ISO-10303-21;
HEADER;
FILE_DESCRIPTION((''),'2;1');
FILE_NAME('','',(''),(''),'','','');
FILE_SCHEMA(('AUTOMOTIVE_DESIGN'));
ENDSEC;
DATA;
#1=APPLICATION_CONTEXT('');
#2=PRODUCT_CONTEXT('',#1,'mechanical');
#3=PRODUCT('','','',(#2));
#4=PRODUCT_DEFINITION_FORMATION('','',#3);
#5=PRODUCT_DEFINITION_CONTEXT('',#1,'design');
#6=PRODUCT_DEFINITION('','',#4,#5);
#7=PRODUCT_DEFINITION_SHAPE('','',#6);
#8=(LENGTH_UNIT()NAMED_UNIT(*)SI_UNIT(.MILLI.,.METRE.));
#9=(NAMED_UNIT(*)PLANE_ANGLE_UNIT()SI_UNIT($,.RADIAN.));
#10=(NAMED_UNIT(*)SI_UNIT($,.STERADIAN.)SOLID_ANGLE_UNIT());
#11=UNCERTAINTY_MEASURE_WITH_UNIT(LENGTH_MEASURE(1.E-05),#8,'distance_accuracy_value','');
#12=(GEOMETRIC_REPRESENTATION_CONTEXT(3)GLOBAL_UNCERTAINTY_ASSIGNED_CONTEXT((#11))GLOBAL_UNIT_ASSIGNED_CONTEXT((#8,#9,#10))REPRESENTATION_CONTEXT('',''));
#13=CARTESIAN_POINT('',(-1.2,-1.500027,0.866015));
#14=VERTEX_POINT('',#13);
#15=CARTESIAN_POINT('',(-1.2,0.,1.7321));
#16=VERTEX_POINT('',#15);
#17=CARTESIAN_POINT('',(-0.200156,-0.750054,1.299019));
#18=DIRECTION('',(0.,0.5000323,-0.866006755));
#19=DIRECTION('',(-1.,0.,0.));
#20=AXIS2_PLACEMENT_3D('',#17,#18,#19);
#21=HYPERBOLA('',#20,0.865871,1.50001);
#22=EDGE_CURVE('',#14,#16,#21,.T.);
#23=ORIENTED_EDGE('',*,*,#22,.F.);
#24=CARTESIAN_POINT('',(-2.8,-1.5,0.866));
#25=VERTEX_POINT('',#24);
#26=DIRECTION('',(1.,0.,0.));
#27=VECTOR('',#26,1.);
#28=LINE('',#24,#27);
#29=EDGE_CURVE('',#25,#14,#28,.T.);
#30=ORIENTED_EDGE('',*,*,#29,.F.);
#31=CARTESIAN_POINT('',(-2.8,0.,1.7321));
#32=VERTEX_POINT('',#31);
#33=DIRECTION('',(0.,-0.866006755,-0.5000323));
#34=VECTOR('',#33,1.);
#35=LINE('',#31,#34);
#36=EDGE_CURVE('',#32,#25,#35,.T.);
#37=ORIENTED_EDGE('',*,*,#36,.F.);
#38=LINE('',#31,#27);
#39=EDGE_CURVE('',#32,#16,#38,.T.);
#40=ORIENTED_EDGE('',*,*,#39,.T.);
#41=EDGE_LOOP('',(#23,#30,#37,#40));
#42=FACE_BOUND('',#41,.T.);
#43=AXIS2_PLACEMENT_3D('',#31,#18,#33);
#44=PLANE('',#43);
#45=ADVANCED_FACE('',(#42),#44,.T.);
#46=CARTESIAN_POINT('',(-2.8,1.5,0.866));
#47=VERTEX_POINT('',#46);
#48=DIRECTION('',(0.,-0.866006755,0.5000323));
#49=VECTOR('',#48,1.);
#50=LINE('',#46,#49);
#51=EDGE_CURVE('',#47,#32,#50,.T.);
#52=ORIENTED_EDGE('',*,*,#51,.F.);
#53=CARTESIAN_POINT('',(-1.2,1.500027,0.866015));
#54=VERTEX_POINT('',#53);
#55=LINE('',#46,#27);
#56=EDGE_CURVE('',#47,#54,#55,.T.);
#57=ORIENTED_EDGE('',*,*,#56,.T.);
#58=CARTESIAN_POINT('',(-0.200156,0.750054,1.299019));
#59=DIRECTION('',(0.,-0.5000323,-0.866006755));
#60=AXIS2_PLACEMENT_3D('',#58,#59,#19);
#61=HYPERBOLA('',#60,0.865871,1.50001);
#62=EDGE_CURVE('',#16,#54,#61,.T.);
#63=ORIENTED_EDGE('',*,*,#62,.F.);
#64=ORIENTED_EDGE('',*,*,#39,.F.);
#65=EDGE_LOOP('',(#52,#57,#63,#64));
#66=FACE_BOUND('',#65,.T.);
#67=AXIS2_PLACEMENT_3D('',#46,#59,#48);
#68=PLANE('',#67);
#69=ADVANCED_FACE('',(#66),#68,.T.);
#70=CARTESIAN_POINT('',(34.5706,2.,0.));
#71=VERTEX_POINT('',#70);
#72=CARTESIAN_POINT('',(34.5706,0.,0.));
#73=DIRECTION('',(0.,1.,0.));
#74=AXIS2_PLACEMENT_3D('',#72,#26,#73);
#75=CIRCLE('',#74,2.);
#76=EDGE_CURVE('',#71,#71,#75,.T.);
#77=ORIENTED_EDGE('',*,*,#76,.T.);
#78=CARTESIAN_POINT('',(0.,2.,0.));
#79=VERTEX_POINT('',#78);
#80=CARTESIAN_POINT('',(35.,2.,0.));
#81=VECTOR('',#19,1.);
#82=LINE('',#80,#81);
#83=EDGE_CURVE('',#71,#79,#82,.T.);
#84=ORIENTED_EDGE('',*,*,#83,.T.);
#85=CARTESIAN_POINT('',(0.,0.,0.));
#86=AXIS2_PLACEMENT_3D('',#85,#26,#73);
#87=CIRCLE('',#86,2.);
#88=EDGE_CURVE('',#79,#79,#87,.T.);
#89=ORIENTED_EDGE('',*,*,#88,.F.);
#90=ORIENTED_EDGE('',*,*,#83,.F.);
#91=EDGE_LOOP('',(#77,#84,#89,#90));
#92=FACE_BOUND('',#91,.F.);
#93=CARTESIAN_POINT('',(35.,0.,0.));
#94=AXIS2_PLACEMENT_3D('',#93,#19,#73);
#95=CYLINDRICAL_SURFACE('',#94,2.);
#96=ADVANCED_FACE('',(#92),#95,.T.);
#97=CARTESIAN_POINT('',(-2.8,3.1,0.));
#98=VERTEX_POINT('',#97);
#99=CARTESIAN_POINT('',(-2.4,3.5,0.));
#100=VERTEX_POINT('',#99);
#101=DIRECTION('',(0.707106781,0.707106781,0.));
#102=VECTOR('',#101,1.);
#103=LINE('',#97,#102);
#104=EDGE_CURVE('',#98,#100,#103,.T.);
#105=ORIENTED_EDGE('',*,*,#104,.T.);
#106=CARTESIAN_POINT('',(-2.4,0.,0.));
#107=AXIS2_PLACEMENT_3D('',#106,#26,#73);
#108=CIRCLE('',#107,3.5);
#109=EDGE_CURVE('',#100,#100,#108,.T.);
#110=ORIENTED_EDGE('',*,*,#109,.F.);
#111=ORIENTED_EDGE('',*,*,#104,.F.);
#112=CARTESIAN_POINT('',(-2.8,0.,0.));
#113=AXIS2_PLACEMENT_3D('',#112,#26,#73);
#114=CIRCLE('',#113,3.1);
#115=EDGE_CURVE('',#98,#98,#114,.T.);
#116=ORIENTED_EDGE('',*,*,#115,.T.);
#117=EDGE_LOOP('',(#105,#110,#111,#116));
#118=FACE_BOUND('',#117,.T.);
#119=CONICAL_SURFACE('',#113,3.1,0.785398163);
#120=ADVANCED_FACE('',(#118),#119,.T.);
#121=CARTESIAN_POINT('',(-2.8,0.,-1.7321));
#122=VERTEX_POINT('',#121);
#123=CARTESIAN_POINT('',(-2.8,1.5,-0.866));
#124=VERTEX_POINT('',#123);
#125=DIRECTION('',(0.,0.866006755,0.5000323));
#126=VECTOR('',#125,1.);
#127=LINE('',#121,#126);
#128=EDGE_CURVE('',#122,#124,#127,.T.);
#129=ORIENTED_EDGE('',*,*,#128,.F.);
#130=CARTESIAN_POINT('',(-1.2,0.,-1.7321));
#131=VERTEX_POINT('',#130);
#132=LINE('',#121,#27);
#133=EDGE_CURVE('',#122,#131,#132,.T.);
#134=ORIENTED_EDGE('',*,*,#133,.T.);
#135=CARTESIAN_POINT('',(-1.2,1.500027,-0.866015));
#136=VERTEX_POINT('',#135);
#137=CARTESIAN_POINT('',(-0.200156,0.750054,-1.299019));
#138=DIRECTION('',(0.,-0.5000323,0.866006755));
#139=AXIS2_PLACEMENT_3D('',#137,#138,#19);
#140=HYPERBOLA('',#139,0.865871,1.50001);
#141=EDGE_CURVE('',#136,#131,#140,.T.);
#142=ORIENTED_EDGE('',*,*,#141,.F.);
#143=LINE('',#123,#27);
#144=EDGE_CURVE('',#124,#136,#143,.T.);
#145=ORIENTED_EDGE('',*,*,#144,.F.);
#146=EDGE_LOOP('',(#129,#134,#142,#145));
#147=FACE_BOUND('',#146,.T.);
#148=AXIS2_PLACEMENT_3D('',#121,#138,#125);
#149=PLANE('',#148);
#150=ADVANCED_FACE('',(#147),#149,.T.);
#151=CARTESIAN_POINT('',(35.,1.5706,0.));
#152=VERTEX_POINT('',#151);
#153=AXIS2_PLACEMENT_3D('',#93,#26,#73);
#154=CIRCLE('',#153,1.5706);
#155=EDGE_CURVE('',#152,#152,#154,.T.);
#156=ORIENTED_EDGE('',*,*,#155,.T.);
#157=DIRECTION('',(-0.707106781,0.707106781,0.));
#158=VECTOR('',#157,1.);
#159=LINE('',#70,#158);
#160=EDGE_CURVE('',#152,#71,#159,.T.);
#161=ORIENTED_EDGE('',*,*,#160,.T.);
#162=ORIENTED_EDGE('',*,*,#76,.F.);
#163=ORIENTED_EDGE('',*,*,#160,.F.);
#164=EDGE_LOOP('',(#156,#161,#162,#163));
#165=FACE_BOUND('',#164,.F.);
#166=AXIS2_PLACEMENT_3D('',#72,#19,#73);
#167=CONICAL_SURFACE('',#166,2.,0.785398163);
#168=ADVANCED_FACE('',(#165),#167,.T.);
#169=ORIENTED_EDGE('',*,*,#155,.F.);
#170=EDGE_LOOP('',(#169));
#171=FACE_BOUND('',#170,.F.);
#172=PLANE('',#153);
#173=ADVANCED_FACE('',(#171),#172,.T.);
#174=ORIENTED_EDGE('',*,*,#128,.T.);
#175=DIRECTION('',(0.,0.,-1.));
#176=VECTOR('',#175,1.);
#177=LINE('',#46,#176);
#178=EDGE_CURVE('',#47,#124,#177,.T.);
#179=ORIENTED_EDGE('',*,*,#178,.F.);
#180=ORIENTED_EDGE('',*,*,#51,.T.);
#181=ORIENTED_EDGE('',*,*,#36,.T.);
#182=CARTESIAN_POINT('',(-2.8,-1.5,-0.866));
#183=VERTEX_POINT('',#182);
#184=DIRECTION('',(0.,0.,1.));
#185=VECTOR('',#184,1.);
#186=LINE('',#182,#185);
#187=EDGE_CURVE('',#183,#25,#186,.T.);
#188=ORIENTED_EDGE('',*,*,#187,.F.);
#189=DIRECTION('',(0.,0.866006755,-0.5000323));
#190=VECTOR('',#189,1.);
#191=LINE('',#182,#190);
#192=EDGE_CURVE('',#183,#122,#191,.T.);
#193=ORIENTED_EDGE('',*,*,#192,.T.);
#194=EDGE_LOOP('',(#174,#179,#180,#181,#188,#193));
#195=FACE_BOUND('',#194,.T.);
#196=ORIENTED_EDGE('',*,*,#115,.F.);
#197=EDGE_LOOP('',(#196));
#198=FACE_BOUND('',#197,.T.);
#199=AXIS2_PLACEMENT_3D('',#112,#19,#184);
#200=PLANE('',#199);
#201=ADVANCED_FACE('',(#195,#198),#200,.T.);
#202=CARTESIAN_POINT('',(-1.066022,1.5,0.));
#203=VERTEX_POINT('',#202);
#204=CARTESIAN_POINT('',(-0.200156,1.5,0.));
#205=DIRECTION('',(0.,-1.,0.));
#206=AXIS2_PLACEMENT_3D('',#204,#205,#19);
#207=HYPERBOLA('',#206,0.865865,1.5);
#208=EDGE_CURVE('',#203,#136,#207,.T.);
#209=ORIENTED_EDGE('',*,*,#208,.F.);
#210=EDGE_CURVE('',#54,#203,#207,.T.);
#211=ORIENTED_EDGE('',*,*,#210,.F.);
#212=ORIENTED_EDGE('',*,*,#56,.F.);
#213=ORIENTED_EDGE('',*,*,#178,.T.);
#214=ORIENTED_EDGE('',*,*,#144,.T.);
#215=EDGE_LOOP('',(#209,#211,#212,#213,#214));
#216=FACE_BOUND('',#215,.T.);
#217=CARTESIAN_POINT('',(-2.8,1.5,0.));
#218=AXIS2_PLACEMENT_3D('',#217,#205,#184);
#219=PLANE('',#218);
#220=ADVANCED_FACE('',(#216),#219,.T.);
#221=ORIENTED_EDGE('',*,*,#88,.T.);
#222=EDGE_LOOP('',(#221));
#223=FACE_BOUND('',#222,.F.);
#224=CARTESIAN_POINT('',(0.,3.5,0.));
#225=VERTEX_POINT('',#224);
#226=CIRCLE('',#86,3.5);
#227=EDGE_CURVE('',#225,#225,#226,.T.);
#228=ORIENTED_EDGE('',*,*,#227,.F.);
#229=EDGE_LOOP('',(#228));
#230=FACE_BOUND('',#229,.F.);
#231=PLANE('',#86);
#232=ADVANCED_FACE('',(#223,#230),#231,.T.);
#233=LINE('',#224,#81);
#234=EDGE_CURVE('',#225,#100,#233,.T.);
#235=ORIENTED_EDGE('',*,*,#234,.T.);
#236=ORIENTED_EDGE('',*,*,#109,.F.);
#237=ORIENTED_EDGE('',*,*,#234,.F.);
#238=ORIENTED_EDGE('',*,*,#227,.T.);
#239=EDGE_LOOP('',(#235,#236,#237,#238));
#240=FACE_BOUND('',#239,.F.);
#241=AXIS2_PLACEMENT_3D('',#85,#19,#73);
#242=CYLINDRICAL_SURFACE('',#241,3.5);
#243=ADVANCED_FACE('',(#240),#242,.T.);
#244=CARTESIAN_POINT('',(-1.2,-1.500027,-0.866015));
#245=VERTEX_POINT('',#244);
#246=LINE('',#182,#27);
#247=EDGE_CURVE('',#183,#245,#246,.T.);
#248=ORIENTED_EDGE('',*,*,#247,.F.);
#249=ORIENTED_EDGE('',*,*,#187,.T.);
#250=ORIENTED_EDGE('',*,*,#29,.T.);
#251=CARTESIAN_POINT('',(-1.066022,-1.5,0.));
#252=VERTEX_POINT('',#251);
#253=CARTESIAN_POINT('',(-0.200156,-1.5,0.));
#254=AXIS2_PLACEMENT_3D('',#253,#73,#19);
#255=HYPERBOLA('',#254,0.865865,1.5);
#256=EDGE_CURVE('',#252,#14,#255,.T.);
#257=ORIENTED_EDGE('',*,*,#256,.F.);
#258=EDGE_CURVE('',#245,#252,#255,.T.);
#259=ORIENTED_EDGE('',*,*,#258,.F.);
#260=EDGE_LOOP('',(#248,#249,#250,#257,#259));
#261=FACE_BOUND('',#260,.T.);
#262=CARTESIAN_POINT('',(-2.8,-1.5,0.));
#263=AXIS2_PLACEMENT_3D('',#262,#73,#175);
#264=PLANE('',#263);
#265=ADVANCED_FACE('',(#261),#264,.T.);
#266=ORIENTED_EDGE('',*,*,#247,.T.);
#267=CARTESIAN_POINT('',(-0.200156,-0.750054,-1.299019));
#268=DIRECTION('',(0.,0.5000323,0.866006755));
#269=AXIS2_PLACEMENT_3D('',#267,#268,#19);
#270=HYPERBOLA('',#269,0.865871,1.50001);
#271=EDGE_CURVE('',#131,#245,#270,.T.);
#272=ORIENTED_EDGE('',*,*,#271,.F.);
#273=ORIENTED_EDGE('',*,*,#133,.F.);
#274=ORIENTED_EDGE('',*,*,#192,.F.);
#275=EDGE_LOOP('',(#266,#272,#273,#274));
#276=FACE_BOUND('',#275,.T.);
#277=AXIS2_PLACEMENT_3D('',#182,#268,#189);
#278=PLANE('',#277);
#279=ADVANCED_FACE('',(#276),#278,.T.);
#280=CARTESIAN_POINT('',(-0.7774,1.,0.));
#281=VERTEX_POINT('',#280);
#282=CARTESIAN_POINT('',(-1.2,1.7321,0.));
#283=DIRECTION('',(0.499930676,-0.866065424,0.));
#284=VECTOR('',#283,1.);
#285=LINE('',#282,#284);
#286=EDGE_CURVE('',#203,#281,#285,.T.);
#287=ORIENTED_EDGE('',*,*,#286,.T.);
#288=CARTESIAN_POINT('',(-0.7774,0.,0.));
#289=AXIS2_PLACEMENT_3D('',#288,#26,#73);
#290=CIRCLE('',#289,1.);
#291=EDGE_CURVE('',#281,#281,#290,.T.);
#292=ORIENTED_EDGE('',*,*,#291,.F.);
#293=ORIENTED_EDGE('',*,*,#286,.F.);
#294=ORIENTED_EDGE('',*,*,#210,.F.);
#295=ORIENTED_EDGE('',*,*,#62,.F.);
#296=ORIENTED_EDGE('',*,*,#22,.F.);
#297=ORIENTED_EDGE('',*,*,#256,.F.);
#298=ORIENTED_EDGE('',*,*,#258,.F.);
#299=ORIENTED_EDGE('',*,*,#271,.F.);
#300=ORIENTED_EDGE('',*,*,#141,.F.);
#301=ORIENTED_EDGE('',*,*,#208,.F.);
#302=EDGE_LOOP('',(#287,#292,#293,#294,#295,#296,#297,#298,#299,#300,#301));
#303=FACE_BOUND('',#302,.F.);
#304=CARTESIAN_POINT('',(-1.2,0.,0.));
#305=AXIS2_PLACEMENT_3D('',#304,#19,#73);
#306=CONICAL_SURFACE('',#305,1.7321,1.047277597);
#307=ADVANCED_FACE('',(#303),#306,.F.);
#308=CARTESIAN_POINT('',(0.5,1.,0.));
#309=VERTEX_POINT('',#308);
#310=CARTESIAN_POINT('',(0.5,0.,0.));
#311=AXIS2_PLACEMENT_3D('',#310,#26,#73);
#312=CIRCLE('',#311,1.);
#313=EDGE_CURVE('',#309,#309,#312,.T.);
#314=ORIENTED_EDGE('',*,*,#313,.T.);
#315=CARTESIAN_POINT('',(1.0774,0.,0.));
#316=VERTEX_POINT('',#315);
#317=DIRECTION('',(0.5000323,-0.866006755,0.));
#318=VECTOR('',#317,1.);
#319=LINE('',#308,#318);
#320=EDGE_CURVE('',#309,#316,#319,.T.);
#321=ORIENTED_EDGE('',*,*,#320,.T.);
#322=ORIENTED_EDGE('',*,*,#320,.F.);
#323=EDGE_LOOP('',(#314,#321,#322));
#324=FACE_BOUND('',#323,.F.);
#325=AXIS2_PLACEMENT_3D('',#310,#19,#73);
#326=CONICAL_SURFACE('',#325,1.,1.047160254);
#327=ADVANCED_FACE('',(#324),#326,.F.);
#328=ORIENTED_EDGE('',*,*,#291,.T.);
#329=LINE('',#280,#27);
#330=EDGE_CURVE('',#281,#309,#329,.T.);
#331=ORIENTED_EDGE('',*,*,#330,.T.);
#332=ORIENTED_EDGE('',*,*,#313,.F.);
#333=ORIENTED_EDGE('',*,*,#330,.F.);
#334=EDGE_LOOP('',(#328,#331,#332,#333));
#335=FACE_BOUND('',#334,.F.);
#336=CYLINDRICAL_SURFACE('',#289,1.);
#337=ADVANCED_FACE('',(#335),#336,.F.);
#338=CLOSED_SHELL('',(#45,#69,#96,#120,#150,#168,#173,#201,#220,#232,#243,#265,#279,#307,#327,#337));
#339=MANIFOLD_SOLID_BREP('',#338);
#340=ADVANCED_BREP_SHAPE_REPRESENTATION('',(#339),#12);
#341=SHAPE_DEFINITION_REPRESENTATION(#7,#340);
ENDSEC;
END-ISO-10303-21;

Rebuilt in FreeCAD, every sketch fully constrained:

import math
import FreeCAD as App
import Part
import Sketcher
Q = App.Units.Quantity


def edges_at(feature, points):
    """Names of the edges that pass closest to the given points."""
    edges = feature.Shape.Edges
    near = lambda p: min(range(len(edges)), key=lambda i: edges[i].distToShape(Part.Vertex(*p))[0])
    return sorted({f"Edge{near(p) + 1}" for p in points})

doc = App.newDocument("Part")
body = doc.addObject("PartDesign::Body", "Body")

sketch1 = body.newObject("Sketcher::SketchObject", "Sketch")
sketch1.AttachmentSupport = (doc.getObject("XY_Plane"), [""])
sketch1.MapMode = "FlatFace"
sketch1.addGeometry([
    Part.LineSegment(App.Vector(0.5, 1, 0), App.Vector(1.1, 0, 0)),
    Part.LineSegment(App.Vector(1.1, 0, 0), App.Vector(35, 0, 0)),
    Part.LineSegment(App.Vector(35, 0, 0), App.Vector(35, 2, 0)),
    Part.LineSegment(App.Vector(35, 2, 0), App.Vector(0, 2, 0)),
    Part.LineSegment(App.Vector(0, 2, 0), App.Vector(0, 3.5, 0)),
    Part.LineSegment(App.Vector(0, 3.5, 0), App.Vector(-2.8, 3.5, 0)),
    Part.LineSegment(App.Vector(-2.8, 3.5, 0), App.Vector(-2.8, 1.7, 0)),
    Part.LineSegment(App.Vector(-2.8, 1.7, 0), App.Vector(-1.2, 1.7, 0)),
    Part.LineSegment(App.Vector(-1.2, 1.7, 0), App.Vector(-0.8, 1, 0)),
    Part.LineSegment(App.Vector(-0.8, 1, 0), App.Vector(0.5, 1, 0)),
], False)
sketch1.addConstraint([
    Sketcher.Constraint("Coincident", 0, 2, 1, 1),
    Sketcher.Constraint("Coincident", 1, 2, 2, 1),
    Sketcher.Constraint("Coincident", 2, 2, 3, 1),
    Sketcher.Constraint("Coincident", 3, 2, 4, 1),
    Sketcher.Constraint("Coincident", 4, 2, 5, 1),
    Sketcher.Constraint("Coincident", 5, 2, 6, 1),
    Sketcher.Constraint("Coincident", 6, 2, 7, 1),
    Sketcher.Constraint("Coincident", 7, 2, 8, 1),
    Sketcher.Constraint("Coincident", 8, 2, 9, 1),
    Sketcher.Constraint("Coincident", 9, 2, 0, 1),
    Sketcher.Constraint("Horizontal", 1),
    Sketcher.Constraint("Vertical", 2),
    Sketcher.Constraint("Horizontal", 3),
    Sketcher.Constraint("Vertical", 4),
    Sketcher.Constraint("Horizontal", 5),
    Sketcher.Constraint("Vertical", 6),
    Sketcher.Constraint("Horizontal", 7),
    Sketcher.Constraint("Horizontal", 9),
    Sketcher.Constraint("PointOnObject", 0, 2, -1),
    Sketcher.Constraint("PointOnObject", 3, 2, -2),
    Sketcher.Constraint("Parallel", 0, 8),
    Sketcher.Constraint("DistanceX", 3, 2, 3, 1, Q("35 mm")),
    Sketcher.Constraint("DistanceY", 2, 1, 2, 2, Q("2 mm")),
    Sketcher.Constraint("DistanceX", 5, 2, 5, 1, Q("2.8 mm")),
    Sketcher.Constraint("DistanceX", 7, 1, 7, 2, Q("1.6 mm")),
    Sketcher.Constraint("DistanceY", 4, 1, 4, 2, Q("1.5 mm")),
    Sketcher.Constraint("DistanceY", -1, 1, 8, 2, Q("1 mm")),
    Sketcher.Constraint("DistanceX", -1, 1, 9, 2, Q("0.5 mm")),
    Sketcher.Constraint("DistanceY", 6, 2, 6, 1, Q("1.768 mm")),
    Sketcher.Constraint("DistanceX", 1, 1, 1, 2, Q("33.9226 mm")),
])
revolution = body.newObject("PartDesign::Revolution", "Revolution")
revolution.Profile = sketch1
revolution.ReferenceAxis = (sketch1, ["H_Axis"])
revolution.Angle = 360

sketch2 = body.newObject("Sketcher::SketchObject", "Sketch001")
sketch2.AttachmentSupport = (doc.getObject("XY_Plane"), [""])
sketch2.MapMode = "FlatFace"
sketch2.addGeometry([
    Part.LineSegment(App.Vector(-2.8, 3.1, 0), App.Vector(-2.4, 3.5, 0)),
    Part.LineSegment(App.Vector(-2.4, 3.5, 0), App.Vector(-2.8, 3.5, 0)),
    Part.LineSegment(App.Vector(-2.8, 3.5, 0), App.Vector(-2.8, 3.1, 0)),
], False)
sketch2.addConstraint([
    Sketcher.Constraint("Coincident", 0, 2, 1, 1),
    Sketcher.Constraint("Coincident", 1, 2, 2, 1),
    Sketcher.Constraint("Coincident", 2, 2, 0, 1),
    Sketcher.Constraint("Horizontal", 1),
    Sketcher.Constraint("Vertical", 2),
    Sketcher.Constraint("Equal", 1, 2),
    Sketcher.Constraint("DistanceX", 1, 2, 1, 1, Q("0.4 mm")),
    Sketcher.Constraint("DistanceX", 1, 2, -1, 1, Q("2.8 mm")),
    Sketcher.Constraint("DistanceY", -1, 1, 0, 2, Q("3.5 mm")),
])
groove = body.newObject("PartDesign::Groove", "Groove")
groove.Profile = sketch2
groove.ReferenceAxis = (sketch2, ["H_Axis"])
groove.Angle = 360

sketch3 = body.newObject("Sketcher::SketchObject", "Sketch002")
sketch3.AttachmentSupport = (doc.getObject("YZ_Plane"), [""])
sketch3.MapMode = "FlatFace"
sketch3.AttachmentOffset = App.Placement(App.Vector(0, 0, -2.8), App.Rotation())
sketch3.addGeometry([
    Part.LineSegment(App.Vector(1.5, 0.9, 0), App.Vector(0, 1.7, 0)),
    Part.ArcOfCircle(Part.Circle(App.Vector(0, 0, 0), App.Vector(0, 0, 1), 1.7), math.radians(30), math.radians(90)),
    Part.ArcOfCircle(Part.Circle(App.Vector(0, 0, 0), App.Vector(0, 0, 1), 1.7), math.radians(90), math.radians(150)),
    Part.LineSegment(App.Vector(0, 1.7, 0), App.Vector(-1.5, 0.9, 0)),
    Part.ArcOfCircle(Part.Circle(App.Vector(0, 0, 0), App.Vector(0, 0, 1), 1.7), math.radians(-30), math.radians(30)),
    Part.LineSegment(App.Vector(1.5, 0.9, 0), App.Vector(1.5, -0.9, 0)),
    Part.LineSegment(App.Vector(-1.5, 0.9, 0), App.Vector(-1.5, -0.9, 0)),
    Part.ArcOfCircle(Part.Circle(App.Vector(0, 0, 0), App.Vector(0, 0, 1), 1.7), math.radians(150), math.radians(210)),
    Part.LineSegment(App.Vector(-1.5, -0.9, 0), App.Vector(0, -1.7, 0)),
    Part.ArcOfCircle(Part.Circle(App.Vector(0, 0, 0), App.Vector(0, 0, 1), 1.7), math.radians(-150), math.radians(-90)),
    Part.ArcOfCircle(Part.Circle(App.Vector(0, 0, 0), App.Vector(0, 0, 1), 1.7), math.radians(-90), math.radians(-30)),
    Part.LineSegment(App.Vector(0, -1.7, 0), App.Vector(1.5, -0.9, 0)),
], False)
sketch3.addConstraint([
    Sketcher.Constraint("Coincident", 0, 1, 1, 1),
    Sketcher.Constraint("Coincident", 1, 2, 0, 2),
    Sketcher.Constraint("Coincident", 2, 1, 3, 1),
    Sketcher.Constraint("Coincident", 3, 2, 2, 2),
    Sketcher.Constraint("Coincident", 4, 1, 5, 2),
    Sketcher.Constraint("Coincident", 5, 1, 4, 2),
    Sketcher.Constraint("Coincident", 6, 1, 7, 1),
    Sketcher.Constraint("Coincident", 7, 2, 6, 2),
    Sketcher.Constraint("Coincident", 8, 1, 9, 1),
    Sketcher.Constraint("Coincident", 9, 2, 8, 2),
    Sketcher.Constraint("Coincident", 10, 1, 11, 1),
    Sketcher.Constraint("Coincident", 11, 2, 10, 2),
    Sketcher.Constraint("Vertical", 5),
    Sketcher.Constraint("Vertical", 6),
    Sketcher.Constraint("Coincident", 1, 3, -1, 1),
    Sketcher.Constraint("Coincident", 2, 3, -1, 1),
    Sketcher.Constraint("Coincident", 4, 3, -1, 1),
    Sketcher.Constraint("Coincident", 7, 3, -1, 1),
    Sketcher.Constraint("Coincident", 9, 3, -1, 1),
    Sketcher.Constraint("Coincident", 10, 3, -1, 1),
    Sketcher.Constraint("Coincident", 2, 1, 1, 2),
    Sketcher.Constraint("Coincident", 5, 1, 0, 1),
    Sketcher.Constraint("Coincident", 6, 1, 3, 2),
    Sketcher.Constraint("Coincident", 8, 1, 7, 2),
    Sketcher.Constraint("Coincident", 10, 1, 9, 2),
    Sketcher.Constraint("PointOnObject", 1, 2, -2),
    Sketcher.Constraint("PointOnObject", 9, 2, -2),
    Sketcher.Constraint("Parallel", 0, 8),
    Sketcher.Constraint("Parallel", 3, 11),
    Sketcher.Constraint("Radius", 1, Q("1.732 mm")),
    Sketcher.Constraint("DistanceX", -1, 1, 0, 1, Q("1.5 mm")),
])
pad1 = body.newObject("PartDesign::Pad", "Pad")
pad1.Profile = sketch3
pad1.Length = 1.734
doc.recompute()

chamfer = body.newObject("PartDesign::Chamfer", "Chamfer")
chamfer.Base = (pad1, edges_at(pad1, [(35, -2, 0)]))
chamfer.ChamferType = "Two distances"
chamfer.Size = 0.4294
chamfer.Size2 = 0.4294

doc.recompute()
